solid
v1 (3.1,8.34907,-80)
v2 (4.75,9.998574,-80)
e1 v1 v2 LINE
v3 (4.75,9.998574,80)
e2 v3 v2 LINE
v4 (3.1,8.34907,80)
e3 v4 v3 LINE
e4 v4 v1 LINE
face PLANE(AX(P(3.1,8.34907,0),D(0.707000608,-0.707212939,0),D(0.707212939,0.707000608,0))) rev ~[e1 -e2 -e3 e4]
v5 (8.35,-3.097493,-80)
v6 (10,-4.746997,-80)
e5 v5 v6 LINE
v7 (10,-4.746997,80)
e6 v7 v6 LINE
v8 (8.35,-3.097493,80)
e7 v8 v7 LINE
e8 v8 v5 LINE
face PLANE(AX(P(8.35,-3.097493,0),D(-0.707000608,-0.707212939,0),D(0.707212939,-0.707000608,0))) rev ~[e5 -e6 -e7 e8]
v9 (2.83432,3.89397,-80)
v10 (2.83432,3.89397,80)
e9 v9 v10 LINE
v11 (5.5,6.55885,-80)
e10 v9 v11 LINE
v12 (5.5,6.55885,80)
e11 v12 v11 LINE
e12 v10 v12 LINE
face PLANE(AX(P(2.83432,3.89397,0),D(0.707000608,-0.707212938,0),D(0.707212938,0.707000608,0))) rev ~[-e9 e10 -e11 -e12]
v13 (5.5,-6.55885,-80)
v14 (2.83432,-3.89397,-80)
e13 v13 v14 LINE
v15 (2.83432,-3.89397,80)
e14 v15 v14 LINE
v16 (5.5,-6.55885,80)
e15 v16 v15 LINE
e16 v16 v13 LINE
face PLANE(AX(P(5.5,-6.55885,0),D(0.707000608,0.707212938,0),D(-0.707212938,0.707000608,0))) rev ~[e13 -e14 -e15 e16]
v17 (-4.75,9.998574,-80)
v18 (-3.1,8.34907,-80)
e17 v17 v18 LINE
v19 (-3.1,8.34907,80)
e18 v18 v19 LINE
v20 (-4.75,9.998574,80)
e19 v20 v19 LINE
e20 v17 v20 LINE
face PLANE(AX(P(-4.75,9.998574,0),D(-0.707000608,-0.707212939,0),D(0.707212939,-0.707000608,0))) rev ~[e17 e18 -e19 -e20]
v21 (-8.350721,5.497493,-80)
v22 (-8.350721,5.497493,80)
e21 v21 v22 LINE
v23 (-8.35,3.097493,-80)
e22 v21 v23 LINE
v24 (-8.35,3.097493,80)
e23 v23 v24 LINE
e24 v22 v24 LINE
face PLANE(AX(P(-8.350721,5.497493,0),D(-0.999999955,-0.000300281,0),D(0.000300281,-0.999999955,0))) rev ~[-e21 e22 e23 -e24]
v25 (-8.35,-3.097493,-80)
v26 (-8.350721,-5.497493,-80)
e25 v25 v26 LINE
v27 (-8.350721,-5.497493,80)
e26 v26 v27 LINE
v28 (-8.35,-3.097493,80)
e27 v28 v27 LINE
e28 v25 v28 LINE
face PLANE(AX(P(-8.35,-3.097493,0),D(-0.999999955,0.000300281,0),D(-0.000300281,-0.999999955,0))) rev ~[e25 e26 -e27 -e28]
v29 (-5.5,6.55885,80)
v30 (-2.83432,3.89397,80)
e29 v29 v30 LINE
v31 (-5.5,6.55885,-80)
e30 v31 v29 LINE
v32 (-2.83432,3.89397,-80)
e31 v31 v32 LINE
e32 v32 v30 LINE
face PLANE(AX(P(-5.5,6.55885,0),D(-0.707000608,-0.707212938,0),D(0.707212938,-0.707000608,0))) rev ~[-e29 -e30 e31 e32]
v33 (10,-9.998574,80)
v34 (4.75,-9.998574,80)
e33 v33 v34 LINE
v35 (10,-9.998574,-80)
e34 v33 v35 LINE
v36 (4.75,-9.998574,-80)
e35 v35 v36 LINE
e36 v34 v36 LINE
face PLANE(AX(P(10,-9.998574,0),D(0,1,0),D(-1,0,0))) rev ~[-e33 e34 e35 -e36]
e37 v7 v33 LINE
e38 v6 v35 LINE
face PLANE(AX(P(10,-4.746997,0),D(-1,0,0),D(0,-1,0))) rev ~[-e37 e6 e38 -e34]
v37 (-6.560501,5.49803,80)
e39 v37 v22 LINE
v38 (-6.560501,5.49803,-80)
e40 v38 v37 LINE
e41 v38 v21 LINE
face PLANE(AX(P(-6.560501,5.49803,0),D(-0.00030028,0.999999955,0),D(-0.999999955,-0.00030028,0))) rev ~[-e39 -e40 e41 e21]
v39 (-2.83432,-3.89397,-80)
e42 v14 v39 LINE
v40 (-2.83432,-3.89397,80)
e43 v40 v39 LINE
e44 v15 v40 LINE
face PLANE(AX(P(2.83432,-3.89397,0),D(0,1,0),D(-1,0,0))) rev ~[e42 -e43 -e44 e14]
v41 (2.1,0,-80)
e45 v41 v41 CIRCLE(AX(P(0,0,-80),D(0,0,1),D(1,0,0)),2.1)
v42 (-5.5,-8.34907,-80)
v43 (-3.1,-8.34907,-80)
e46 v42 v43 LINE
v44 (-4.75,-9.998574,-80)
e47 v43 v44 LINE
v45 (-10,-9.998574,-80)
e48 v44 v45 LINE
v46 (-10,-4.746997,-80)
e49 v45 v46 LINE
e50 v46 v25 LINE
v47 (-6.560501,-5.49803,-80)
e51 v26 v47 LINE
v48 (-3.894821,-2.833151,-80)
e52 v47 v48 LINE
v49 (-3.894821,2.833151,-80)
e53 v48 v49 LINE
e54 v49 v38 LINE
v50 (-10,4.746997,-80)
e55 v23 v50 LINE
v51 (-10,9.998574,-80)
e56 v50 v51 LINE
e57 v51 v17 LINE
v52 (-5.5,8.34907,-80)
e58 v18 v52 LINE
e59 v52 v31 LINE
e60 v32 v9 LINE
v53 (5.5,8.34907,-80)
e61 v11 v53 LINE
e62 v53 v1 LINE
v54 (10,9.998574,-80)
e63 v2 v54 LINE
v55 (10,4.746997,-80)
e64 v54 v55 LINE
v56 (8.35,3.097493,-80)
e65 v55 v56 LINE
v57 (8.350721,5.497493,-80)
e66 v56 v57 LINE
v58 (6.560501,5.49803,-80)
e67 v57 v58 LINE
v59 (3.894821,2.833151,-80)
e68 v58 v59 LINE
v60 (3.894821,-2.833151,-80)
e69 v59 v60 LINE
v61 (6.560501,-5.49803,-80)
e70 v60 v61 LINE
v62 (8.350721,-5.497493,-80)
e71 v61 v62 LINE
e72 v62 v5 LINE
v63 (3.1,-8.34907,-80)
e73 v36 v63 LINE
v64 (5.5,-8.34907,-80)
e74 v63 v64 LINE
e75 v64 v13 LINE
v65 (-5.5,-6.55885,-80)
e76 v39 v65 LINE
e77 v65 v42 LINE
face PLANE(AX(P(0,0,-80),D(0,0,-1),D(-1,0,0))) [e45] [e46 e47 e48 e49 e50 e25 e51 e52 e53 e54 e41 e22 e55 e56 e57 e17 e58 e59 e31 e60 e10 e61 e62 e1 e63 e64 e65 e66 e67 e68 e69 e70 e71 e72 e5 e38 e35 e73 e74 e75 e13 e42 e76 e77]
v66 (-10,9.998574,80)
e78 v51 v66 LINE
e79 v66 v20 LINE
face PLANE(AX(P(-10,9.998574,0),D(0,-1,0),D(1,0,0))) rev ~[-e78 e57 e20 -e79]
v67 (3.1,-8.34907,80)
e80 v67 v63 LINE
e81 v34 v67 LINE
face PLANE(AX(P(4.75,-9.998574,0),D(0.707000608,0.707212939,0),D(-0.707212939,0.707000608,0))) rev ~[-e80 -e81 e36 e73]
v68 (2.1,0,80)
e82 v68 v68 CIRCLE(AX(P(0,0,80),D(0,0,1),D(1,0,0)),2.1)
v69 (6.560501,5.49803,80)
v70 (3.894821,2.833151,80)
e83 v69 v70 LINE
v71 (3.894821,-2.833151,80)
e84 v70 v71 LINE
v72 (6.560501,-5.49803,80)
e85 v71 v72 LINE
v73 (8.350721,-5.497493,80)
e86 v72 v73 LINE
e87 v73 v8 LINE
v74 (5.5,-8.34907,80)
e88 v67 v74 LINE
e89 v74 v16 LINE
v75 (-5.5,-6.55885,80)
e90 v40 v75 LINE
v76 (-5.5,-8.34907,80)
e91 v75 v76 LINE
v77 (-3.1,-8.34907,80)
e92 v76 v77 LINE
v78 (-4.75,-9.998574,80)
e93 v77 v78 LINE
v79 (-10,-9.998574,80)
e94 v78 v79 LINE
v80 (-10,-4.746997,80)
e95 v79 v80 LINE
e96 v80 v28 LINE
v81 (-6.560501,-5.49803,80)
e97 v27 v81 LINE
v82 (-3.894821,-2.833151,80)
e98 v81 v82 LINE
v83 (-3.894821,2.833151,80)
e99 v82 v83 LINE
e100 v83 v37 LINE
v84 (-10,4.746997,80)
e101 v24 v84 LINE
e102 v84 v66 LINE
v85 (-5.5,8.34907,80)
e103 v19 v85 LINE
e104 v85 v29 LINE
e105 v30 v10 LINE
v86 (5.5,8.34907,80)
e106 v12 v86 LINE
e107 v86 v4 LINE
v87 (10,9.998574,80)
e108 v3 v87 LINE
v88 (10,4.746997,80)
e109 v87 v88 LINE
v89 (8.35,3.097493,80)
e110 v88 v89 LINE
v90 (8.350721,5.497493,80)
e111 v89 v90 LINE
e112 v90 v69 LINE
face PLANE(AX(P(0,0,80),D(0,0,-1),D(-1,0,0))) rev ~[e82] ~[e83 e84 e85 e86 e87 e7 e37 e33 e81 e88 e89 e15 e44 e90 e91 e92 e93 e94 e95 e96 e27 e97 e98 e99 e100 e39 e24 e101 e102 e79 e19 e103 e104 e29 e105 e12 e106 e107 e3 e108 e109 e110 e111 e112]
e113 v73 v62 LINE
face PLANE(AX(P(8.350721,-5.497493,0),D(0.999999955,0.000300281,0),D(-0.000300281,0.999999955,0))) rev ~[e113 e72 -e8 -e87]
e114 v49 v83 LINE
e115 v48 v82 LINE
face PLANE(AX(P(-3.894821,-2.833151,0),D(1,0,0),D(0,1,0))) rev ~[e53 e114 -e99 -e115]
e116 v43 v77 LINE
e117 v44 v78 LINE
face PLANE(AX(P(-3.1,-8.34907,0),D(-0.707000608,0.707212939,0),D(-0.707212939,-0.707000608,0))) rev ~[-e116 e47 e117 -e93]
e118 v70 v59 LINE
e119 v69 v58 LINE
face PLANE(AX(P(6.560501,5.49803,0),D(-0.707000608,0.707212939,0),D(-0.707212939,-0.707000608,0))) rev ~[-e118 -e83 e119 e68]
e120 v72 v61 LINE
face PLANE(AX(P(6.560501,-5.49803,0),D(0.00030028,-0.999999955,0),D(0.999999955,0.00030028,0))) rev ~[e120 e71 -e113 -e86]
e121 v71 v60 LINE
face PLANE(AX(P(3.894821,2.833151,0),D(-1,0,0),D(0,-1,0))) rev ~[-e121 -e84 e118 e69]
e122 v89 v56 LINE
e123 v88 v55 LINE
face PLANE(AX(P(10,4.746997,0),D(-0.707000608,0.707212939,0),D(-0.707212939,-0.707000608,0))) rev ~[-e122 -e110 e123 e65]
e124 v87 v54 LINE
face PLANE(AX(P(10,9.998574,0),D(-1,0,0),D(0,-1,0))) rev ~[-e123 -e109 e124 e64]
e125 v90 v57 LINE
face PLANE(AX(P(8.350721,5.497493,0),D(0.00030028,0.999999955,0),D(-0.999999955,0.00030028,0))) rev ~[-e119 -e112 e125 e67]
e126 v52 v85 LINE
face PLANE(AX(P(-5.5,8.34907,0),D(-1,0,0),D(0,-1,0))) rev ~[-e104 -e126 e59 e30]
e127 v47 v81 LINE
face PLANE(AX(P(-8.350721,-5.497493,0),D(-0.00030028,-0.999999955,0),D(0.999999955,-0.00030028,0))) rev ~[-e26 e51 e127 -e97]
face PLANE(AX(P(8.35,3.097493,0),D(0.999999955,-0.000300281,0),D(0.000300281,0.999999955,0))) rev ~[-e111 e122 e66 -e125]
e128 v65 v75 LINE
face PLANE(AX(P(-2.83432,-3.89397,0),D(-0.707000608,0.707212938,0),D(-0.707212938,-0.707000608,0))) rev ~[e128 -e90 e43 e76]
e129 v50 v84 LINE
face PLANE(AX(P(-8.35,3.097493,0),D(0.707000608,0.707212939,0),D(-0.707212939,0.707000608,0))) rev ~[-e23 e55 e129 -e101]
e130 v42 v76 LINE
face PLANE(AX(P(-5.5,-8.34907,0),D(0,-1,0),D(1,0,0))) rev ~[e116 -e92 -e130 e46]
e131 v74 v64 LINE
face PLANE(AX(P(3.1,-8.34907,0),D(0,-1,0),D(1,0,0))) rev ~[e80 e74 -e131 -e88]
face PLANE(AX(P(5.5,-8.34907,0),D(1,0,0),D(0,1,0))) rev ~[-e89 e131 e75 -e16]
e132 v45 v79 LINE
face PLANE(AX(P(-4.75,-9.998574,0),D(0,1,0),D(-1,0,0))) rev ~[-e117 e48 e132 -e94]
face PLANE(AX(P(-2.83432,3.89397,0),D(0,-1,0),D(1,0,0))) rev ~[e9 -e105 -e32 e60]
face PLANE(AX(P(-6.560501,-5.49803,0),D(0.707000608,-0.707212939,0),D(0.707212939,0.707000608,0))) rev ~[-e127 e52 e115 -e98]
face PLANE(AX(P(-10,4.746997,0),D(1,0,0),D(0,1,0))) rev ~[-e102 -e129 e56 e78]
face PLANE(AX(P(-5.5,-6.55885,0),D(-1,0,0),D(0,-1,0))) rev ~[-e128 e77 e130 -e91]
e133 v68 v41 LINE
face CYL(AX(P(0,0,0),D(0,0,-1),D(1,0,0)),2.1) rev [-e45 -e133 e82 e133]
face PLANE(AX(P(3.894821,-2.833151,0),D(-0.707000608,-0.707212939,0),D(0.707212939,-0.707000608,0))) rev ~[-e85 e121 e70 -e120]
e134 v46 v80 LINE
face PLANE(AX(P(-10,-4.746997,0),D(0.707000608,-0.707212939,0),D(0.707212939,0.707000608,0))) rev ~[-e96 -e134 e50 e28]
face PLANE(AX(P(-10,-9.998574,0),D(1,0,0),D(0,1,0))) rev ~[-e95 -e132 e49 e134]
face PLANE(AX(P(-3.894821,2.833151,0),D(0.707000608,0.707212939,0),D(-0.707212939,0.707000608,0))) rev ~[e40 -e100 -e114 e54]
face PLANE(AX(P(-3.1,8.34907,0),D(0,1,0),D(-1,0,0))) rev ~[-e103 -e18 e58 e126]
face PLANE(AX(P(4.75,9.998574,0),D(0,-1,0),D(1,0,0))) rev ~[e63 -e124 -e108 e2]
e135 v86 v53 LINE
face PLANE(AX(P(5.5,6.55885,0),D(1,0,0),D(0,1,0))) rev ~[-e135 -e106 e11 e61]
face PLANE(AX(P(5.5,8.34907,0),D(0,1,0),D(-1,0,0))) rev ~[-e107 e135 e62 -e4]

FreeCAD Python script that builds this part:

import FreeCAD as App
import Part
import Sketcher
from FreeCAD import Vector

doc = App.newDocument("Part")
body = doc.addObject("PartDesign::Body", "Body")

sketch1 = body.newObject("Sketcher::SketchObject", "Sketch")
sketch1.AttachmentSupport = (doc.getObject("XY_Plane"), [""])
sketch1.MapMode = "FlatFace"
sketch1.addGeometry([
    Part.LineSegment(Vector(5.5, 6.55885, 0), Vector(2.83432, 3.89397, 0)),
    Part.LineSegment(Vector(2.83432, 3.89397, 0), Vector(-2.83432, 3.89397, 0)),
    Part.LineSegment(Vector(-2.83432, 3.89397, 0), Vector(-5.5, 6.55885, 0)),
    Part.LineSegment(Vector(-5.5, 6.55885, 0), Vector(-5.5, 8.34907, 0)),
    Part.LineSegment(Vector(-5.5, 8.34907, 0), Vector(-3.1, 8.34907, 0)),
    Part.LineSegment(Vector(-3.1, 8.34907, 0), Vector(-4.75, 9.998574, 0)),
    Part.LineSegment(Vector(-4.75, 9.998574, 0), Vector(-10, 9.998574, 0)),
    Part.LineSegment(Vector(-10, 9.998574, 0), Vector(-10, 4.746997, 0)),
    Part.LineSegment(Vector(-10, 4.746997, 0), Vector(-8.35, 3.097493, 0)),
    Part.LineSegment(Vector(-8.35, 3.097493, 0), Vector(-8.350721, 5.497493, 0)),
    Part.LineSegment(Vector(-8.350721, 5.497493, 0), Vector(-6.560501, 5.49803, 0)),
    Part.LineSegment(Vector(-6.560501, 5.49803, 0), Vector(-3.894821, 2.833151, 0)),
    Part.LineSegment(Vector(-3.894821, 2.833151, 0), Vector(-3.894821, -2.833151, 0)),
    Part.LineSegment(Vector(-3.894821, -2.833151, 0), Vector(-6.560501, -5.49803, 0)),
    Part.LineSegment(Vector(-6.560501, -5.49803, 0), Vector(-8.350721, -5.497493, 0)),
    Part.LineSegment(Vector(-8.350721, -5.497493, 0), Vector(-8.35, -3.097493, 0)),
    Part.LineSegment(Vector(-8.35, -3.097493, 0), Vector(-10, -4.746997, 0)),
    Part.LineSegment(Vector(-10, -4.746997, 0), Vector(-10, -9.998574, 0)),
    Part.LineSegment(Vector(-10, -9.998574, 0), Vector(-4.75, -9.998574, 0)),
    Part.LineSegment(Vector(-4.75, -9.998574, 0), Vector(-3.1, -8.34907, 0)),
    Part.LineSegment(Vector(-3.1, -8.34907, 0), Vector(-5.5, -8.34907, 0)),
    Part.LineSegment(Vector(-5.5, -8.34907, 0), Vector(-5.5, -6.55885, 0)),
    Part.LineSegment(Vector(-5.5, -6.55885, 0), Vector(-2.83432, -3.89397, 0)),
    Part.LineSegment(Vector(-2.83432, -3.89397, 0), Vector(2.83432, -3.89397, 0)),
    Part.LineSegment(Vector(2.83432, -3.89397, 0), Vector(5.5, -6.55885, 0)),
    Part.LineSegment(Vector(5.5, -6.55885, 0), Vector(5.5, -8.34907, 0)),
    Part.LineSegment(Vector(5.5, -8.34907, 0), Vector(3.1, -8.34907, 0)),
    Part.LineSegment(Vector(3.1, -8.34907, 0), Vector(4.75, -9.998574, 0)),
    Part.LineSegment(Vector(4.75, -9.998574, 0), Vector(10, -9.998574, 0)),
    Part.LineSegment(Vector(10, -9.998574, 0), Vector(10, -4.746997, 0)),
    Part.LineSegment(Vector(10, -4.746997, 0), Vector(8.35, -3.097493, 0)),
    Part.LineSegment(Vector(8.35, -3.097493, 0), Vector(8.350721, -5.497493, 0)),
    Part.LineSegment(Vector(8.350721, -5.497493, 0), Vector(6.560501, -5.49803, 0)),
    Part.LineSegment(Vector(6.560501, -5.49803, 0), Vector(3.894821, -2.833151, 0)),
    Part.LineSegment(Vector(3.894821, -2.833151, 0), Vector(3.894821, 2.833151, 0)),
    Part.LineSegment(Vector(3.894821, 2.833151, 0), Vector(6.560501, 5.49803, 0)),
    Part.LineSegment(Vector(6.560501, 5.49803, 0), Vector(8.350721, 5.497493, 0)),
    Part.LineSegment(Vector(8.350721, 5.497493, 0), Vector(8.35, 3.097493, 0)),
    Part.LineSegment(Vector(8.35, 3.097493, 0), Vector(10, 4.746997, 0)),
    Part.LineSegment(Vector(10, 4.746997, 0), Vector(10, 9.998574, 0)),
    Part.LineSegment(Vector(10, 9.998574, 0), Vector(4.75, 9.998574, 0)),
    Part.LineSegment(Vector(4.75, 9.998574, 0), Vector(3.1, 8.34907, 0)),
    Part.LineSegment(Vector(3.1, 8.34907, 0), Vector(5.5, 8.34907, 0)),
    Part.LineSegment(Vector(5.5, 8.34907, 0), Vector(5.5, 6.55885, 0)),
    Part.Circle(Vector(0, 0, 0), Vector(0, 0, 1), 2.1),
], False)
sketch1.addConstraint([
    Sketcher.Constraint("Coincident", 0, 2, 1, 1),
    Sketcher.Constraint("Coincident", 1, 2, 2, 1),
    Sketcher.Constraint("Coincident", 2, 2, 3, 1),
    Sketcher.Constraint("Coincident", 3, 2, 4, 1),
    Sketcher.Constraint("Coincident", 4, 2, 5, 1),
    Sketcher.Constraint("Coincident", 5, 2, 6, 1),
    Sketcher.Constraint("Coincident", 6, 2, 7, 1),
    Sketcher.Constraint("Coincident", 7, 2, 8, 1),
    Sketcher.Constraint("Coincident", 8, 2, 9, 1),
    Sketcher.Constraint("Coincident", 9, 2, 10, 1),
    Sketcher.Constraint("Coincident", 10, 2, 11, 1),
    Sketcher.Constraint("Coincident", 11, 2, 12, 1),
    Sketcher.Constraint("Coincident", 12, 2, 13, 1),
    Sketcher.Constraint("Coincident", 13, 2, 14, 1),
    Sketcher.Constraint("Coincident", 14, 2, 15, 1),
    Sketcher.Constraint("Coincident", 15, 2, 16, 1),
    Sketcher.Constraint("Coincident", 16, 2, 17, 1),
    Sketcher.Constraint("Coincident", 17, 2, 18, 1),
    Sketcher.Constraint("Coincident", 18, 2, 19, 1),
    Sketcher.Constraint("Coincident", 19, 2, 20, 1),
    Sketcher.Constraint("Coincident", 20, 2, 21, 1),
    Sketcher.Constraint("Coincident", 21, 2, 22, 1),
    Sketcher.Constraint("Coincident", 22, 2, 23, 1),
    Sketcher.Constraint("Coincident", 23, 2, 24, 1),
    Sketcher.Constraint("Coincident", 24, 2, 25, 1),
    Sketcher.Constraint("Coincident", 25, 2, 26, 1),
    Sketcher.Constraint("Coincident", 26, 2, 27, 1),
    Sketcher.Constraint("Coincident", 27, 2, 28, 1),
    Sketcher.Constraint("Coincident", 28, 2, 29, 1),
    Sketcher.Constraint("Coincident", 29, 2, 30, 1),
    Sketcher.Constraint("Coincident", 30, 2, 31, 1),
    Sketcher.Constraint("Coincident", 31, 2, 32, 1),
    Sketcher.Constraint("Coincident", 32, 2, 33, 1),
    Sketcher.Constraint("Coincident", 33, 2, 34, 1),
    Sketcher.Constraint("Coincident", 34, 2, 35, 1),
    Sketcher.Constraint("Coincident", 35, 2, 36, 1),
    Sketcher.Constraint("Coincident", 36, 2, 37, 1),
    Sketcher.Constraint("Coincident", 37, 2, 38, 1),
    Sketcher.Constraint("Coincident", 38, 2, 39, 1),
    Sketcher.Constraint("Coincident", 39, 2, 40, 1),
    Sketcher.Constraint("Coincident", 40, 2, 41, 1),
    Sketcher.Constraint("Coincident", 41, 2, 42, 1),
    Sketcher.Constraint("Coincident", 42, 2, 43, 1),
    Sketcher.Constraint("Coincident", 43, 2, 0, 1),
    Sketcher.Constraint("Horizontal", 1),
    Sketcher.Constraint("Vertical", 3),
    Sketcher.Constraint("Horizontal", 4),
    Sketcher.Constraint("Horizontal", 6),
    Sketcher.Constraint("Vertical", 7),
    Sketcher.Constraint("Vertical", 12),
    Sketcher.Constraint("Vertical", 17),
    Sketcher.Constraint("Horizontal", 18),
    Sketcher.Constraint("Horizontal", 20),
    Sketcher.Constraint("Vertical", 21),
    Sketcher.Constraint("Horizontal", 23),
    Sketcher.Constraint("Vertical", 25),
    Sketcher.Constraint("Horizontal", 26),
    Sketcher.Constraint("Horizontal", 28),
    Sketcher.Constraint("Vertical", 29),
    Sketcher.Constraint("Vertical", 34),
    Sketcher.Constraint("Vertical", 39),
    Sketcher.Constraint("Horizontal", 40),
    Sketcher.Constraint("Horizontal", 42),
    Sketcher.Constraint("Vertical", 43),
    Sketcher.Constraint("Coincident", 44, 3, -1, 1),
    Sketcher.Constraint("Symmetric", 0, 2, 22, 2, -1, 1),
    Sketcher.Constraint("Symmetric", 2, 2, 24, 2, -1, 1),
    Sketcher.Constraint("Symmetric", 4, 2, 26, 2, -1, 1),
    Sketcher.Constraint("Symmetric", 5, 2, 27, 2, -1, 1),
    Sketcher.Constraint("Symmetric", 7, 2, 29, 2, -1, 1),
    Sketcher.Constraint("Symmetric", 8, 2, 30, 2, -1, 1),
    Sketcher.Constraint("Symmetric", 9, 2, 31, 2, -1, 1),
    Sketcher.Constraint("Symmetric", 10, 2, 32, 2, -1, 1),
    Sketcher.Constraint("Symmetric", 11, 2, 33, 2, -1, 1),
    Sketcher.Constraint("Symmetric", 13, 2, 35, 2, -1, 1),
    Sketcher.Constraint("Symmetric", 14, 2, 36, 2, -1, 1),
    Sketcher.Constraint("Symmetric", 15, 2, 37, 2, -1, 1),
    Sketcher.Constraint("Symmetric", 16, 2, 38, 2, -1, 1),
    Sketcher.Constraint("Symmetric", 18, 2, 40, 2, -1, 1),
    Sketcher.Constraint("Symmetric", 19, 2, 41, 2, -1, 1),
    Sketcher.Constraint("Symmetric", 21, 2, 43, 2, -1, 1),
    Sketcher.Constraint("Symmetric", 21, 2, 24, 2, -2),
    Sketcher.Constraint("Symmetric", 19, 2, 26, 2, -2),
    Sketcher.Constraint("Symmetric", 18, 2, 27, 2, -2),
    Sketcher.Constraint("Symmetric", 16, 2, 29, 2, -2),
    Sketcher.Constraint("Symmetric", 15, 2, 30, 2, -2),
    Sketcher.Constraint("Symmetric", 14, 2, 31, 2, -2),
    Sketcher.Constraint("Symmetric", 13, 2, 32, 2, -2),
    Sketcher.Constraint("Parallel", 2, 5),
    Sketcher.Constraint("Parallel", 5, 8),
    Sketcher.Constraint("Perpendicular", 9, 10),
    Sketcher.Constraint("Parallel", 8, 11),
    Sketcher.Constraint("Parallel", 0, 13),
    Sketcher.Constraint("Parallel", 13, 16),
    Sketcher.Constraint("Parallel", 11, 24),
    Sketcher.Constraint("Parallel", 22, 35),
    Sketcher.Constraint("Equal", 5, 8),
    Sketcher.Constraint("Equal", 2, 11),
    Sketcher.Constraint("Diameter", 44, 4.2),
    Sketcher.Constraint("DistanceX", 4, 1, 4, 2, 2.4),
    Sketcher.Constraint("DistanceX", 6, 2, -1, 1, 10.0),
    Sketcher.Constraint("Distance", 9, 2.4),
    Sketcher.Constraint("DistanceX", 6, 2, 6, 1, 5.25),
    Sketcher.Constraint("DistanceX", 2, 2, -1, 1, 5.5),
    Sketcher.Constraint("DistanceY", 12, 2, 12, 1, 5.666302),
    Sketcher.Constraint("DistanceY", 13, 2, 1, 2, 9.392001),
    Sketcher.Constraint("DistanceX", 1, 2, 1, 1, 5.668641),
    Sketcher.Constraint("DistanceY", 3, 1, 3, 2, 1.79022),
    Sketcher.Constraint("DistanceX", 10, 2, -1, 1, 6.560501),
    Sketcher.Constraint("DistanceY", 1, 2, 3, 2, 4.455099),
    Sketcher.Constraint("DistanceX", 14, 2, 12, 2, 4.455899),
])
pad1 = body.newObject("PartDesign::Pad", "Pad")
pad1.Profile = sketch1
pad1.Length = 160
pad1.Midplane = True

doc.recompute()
